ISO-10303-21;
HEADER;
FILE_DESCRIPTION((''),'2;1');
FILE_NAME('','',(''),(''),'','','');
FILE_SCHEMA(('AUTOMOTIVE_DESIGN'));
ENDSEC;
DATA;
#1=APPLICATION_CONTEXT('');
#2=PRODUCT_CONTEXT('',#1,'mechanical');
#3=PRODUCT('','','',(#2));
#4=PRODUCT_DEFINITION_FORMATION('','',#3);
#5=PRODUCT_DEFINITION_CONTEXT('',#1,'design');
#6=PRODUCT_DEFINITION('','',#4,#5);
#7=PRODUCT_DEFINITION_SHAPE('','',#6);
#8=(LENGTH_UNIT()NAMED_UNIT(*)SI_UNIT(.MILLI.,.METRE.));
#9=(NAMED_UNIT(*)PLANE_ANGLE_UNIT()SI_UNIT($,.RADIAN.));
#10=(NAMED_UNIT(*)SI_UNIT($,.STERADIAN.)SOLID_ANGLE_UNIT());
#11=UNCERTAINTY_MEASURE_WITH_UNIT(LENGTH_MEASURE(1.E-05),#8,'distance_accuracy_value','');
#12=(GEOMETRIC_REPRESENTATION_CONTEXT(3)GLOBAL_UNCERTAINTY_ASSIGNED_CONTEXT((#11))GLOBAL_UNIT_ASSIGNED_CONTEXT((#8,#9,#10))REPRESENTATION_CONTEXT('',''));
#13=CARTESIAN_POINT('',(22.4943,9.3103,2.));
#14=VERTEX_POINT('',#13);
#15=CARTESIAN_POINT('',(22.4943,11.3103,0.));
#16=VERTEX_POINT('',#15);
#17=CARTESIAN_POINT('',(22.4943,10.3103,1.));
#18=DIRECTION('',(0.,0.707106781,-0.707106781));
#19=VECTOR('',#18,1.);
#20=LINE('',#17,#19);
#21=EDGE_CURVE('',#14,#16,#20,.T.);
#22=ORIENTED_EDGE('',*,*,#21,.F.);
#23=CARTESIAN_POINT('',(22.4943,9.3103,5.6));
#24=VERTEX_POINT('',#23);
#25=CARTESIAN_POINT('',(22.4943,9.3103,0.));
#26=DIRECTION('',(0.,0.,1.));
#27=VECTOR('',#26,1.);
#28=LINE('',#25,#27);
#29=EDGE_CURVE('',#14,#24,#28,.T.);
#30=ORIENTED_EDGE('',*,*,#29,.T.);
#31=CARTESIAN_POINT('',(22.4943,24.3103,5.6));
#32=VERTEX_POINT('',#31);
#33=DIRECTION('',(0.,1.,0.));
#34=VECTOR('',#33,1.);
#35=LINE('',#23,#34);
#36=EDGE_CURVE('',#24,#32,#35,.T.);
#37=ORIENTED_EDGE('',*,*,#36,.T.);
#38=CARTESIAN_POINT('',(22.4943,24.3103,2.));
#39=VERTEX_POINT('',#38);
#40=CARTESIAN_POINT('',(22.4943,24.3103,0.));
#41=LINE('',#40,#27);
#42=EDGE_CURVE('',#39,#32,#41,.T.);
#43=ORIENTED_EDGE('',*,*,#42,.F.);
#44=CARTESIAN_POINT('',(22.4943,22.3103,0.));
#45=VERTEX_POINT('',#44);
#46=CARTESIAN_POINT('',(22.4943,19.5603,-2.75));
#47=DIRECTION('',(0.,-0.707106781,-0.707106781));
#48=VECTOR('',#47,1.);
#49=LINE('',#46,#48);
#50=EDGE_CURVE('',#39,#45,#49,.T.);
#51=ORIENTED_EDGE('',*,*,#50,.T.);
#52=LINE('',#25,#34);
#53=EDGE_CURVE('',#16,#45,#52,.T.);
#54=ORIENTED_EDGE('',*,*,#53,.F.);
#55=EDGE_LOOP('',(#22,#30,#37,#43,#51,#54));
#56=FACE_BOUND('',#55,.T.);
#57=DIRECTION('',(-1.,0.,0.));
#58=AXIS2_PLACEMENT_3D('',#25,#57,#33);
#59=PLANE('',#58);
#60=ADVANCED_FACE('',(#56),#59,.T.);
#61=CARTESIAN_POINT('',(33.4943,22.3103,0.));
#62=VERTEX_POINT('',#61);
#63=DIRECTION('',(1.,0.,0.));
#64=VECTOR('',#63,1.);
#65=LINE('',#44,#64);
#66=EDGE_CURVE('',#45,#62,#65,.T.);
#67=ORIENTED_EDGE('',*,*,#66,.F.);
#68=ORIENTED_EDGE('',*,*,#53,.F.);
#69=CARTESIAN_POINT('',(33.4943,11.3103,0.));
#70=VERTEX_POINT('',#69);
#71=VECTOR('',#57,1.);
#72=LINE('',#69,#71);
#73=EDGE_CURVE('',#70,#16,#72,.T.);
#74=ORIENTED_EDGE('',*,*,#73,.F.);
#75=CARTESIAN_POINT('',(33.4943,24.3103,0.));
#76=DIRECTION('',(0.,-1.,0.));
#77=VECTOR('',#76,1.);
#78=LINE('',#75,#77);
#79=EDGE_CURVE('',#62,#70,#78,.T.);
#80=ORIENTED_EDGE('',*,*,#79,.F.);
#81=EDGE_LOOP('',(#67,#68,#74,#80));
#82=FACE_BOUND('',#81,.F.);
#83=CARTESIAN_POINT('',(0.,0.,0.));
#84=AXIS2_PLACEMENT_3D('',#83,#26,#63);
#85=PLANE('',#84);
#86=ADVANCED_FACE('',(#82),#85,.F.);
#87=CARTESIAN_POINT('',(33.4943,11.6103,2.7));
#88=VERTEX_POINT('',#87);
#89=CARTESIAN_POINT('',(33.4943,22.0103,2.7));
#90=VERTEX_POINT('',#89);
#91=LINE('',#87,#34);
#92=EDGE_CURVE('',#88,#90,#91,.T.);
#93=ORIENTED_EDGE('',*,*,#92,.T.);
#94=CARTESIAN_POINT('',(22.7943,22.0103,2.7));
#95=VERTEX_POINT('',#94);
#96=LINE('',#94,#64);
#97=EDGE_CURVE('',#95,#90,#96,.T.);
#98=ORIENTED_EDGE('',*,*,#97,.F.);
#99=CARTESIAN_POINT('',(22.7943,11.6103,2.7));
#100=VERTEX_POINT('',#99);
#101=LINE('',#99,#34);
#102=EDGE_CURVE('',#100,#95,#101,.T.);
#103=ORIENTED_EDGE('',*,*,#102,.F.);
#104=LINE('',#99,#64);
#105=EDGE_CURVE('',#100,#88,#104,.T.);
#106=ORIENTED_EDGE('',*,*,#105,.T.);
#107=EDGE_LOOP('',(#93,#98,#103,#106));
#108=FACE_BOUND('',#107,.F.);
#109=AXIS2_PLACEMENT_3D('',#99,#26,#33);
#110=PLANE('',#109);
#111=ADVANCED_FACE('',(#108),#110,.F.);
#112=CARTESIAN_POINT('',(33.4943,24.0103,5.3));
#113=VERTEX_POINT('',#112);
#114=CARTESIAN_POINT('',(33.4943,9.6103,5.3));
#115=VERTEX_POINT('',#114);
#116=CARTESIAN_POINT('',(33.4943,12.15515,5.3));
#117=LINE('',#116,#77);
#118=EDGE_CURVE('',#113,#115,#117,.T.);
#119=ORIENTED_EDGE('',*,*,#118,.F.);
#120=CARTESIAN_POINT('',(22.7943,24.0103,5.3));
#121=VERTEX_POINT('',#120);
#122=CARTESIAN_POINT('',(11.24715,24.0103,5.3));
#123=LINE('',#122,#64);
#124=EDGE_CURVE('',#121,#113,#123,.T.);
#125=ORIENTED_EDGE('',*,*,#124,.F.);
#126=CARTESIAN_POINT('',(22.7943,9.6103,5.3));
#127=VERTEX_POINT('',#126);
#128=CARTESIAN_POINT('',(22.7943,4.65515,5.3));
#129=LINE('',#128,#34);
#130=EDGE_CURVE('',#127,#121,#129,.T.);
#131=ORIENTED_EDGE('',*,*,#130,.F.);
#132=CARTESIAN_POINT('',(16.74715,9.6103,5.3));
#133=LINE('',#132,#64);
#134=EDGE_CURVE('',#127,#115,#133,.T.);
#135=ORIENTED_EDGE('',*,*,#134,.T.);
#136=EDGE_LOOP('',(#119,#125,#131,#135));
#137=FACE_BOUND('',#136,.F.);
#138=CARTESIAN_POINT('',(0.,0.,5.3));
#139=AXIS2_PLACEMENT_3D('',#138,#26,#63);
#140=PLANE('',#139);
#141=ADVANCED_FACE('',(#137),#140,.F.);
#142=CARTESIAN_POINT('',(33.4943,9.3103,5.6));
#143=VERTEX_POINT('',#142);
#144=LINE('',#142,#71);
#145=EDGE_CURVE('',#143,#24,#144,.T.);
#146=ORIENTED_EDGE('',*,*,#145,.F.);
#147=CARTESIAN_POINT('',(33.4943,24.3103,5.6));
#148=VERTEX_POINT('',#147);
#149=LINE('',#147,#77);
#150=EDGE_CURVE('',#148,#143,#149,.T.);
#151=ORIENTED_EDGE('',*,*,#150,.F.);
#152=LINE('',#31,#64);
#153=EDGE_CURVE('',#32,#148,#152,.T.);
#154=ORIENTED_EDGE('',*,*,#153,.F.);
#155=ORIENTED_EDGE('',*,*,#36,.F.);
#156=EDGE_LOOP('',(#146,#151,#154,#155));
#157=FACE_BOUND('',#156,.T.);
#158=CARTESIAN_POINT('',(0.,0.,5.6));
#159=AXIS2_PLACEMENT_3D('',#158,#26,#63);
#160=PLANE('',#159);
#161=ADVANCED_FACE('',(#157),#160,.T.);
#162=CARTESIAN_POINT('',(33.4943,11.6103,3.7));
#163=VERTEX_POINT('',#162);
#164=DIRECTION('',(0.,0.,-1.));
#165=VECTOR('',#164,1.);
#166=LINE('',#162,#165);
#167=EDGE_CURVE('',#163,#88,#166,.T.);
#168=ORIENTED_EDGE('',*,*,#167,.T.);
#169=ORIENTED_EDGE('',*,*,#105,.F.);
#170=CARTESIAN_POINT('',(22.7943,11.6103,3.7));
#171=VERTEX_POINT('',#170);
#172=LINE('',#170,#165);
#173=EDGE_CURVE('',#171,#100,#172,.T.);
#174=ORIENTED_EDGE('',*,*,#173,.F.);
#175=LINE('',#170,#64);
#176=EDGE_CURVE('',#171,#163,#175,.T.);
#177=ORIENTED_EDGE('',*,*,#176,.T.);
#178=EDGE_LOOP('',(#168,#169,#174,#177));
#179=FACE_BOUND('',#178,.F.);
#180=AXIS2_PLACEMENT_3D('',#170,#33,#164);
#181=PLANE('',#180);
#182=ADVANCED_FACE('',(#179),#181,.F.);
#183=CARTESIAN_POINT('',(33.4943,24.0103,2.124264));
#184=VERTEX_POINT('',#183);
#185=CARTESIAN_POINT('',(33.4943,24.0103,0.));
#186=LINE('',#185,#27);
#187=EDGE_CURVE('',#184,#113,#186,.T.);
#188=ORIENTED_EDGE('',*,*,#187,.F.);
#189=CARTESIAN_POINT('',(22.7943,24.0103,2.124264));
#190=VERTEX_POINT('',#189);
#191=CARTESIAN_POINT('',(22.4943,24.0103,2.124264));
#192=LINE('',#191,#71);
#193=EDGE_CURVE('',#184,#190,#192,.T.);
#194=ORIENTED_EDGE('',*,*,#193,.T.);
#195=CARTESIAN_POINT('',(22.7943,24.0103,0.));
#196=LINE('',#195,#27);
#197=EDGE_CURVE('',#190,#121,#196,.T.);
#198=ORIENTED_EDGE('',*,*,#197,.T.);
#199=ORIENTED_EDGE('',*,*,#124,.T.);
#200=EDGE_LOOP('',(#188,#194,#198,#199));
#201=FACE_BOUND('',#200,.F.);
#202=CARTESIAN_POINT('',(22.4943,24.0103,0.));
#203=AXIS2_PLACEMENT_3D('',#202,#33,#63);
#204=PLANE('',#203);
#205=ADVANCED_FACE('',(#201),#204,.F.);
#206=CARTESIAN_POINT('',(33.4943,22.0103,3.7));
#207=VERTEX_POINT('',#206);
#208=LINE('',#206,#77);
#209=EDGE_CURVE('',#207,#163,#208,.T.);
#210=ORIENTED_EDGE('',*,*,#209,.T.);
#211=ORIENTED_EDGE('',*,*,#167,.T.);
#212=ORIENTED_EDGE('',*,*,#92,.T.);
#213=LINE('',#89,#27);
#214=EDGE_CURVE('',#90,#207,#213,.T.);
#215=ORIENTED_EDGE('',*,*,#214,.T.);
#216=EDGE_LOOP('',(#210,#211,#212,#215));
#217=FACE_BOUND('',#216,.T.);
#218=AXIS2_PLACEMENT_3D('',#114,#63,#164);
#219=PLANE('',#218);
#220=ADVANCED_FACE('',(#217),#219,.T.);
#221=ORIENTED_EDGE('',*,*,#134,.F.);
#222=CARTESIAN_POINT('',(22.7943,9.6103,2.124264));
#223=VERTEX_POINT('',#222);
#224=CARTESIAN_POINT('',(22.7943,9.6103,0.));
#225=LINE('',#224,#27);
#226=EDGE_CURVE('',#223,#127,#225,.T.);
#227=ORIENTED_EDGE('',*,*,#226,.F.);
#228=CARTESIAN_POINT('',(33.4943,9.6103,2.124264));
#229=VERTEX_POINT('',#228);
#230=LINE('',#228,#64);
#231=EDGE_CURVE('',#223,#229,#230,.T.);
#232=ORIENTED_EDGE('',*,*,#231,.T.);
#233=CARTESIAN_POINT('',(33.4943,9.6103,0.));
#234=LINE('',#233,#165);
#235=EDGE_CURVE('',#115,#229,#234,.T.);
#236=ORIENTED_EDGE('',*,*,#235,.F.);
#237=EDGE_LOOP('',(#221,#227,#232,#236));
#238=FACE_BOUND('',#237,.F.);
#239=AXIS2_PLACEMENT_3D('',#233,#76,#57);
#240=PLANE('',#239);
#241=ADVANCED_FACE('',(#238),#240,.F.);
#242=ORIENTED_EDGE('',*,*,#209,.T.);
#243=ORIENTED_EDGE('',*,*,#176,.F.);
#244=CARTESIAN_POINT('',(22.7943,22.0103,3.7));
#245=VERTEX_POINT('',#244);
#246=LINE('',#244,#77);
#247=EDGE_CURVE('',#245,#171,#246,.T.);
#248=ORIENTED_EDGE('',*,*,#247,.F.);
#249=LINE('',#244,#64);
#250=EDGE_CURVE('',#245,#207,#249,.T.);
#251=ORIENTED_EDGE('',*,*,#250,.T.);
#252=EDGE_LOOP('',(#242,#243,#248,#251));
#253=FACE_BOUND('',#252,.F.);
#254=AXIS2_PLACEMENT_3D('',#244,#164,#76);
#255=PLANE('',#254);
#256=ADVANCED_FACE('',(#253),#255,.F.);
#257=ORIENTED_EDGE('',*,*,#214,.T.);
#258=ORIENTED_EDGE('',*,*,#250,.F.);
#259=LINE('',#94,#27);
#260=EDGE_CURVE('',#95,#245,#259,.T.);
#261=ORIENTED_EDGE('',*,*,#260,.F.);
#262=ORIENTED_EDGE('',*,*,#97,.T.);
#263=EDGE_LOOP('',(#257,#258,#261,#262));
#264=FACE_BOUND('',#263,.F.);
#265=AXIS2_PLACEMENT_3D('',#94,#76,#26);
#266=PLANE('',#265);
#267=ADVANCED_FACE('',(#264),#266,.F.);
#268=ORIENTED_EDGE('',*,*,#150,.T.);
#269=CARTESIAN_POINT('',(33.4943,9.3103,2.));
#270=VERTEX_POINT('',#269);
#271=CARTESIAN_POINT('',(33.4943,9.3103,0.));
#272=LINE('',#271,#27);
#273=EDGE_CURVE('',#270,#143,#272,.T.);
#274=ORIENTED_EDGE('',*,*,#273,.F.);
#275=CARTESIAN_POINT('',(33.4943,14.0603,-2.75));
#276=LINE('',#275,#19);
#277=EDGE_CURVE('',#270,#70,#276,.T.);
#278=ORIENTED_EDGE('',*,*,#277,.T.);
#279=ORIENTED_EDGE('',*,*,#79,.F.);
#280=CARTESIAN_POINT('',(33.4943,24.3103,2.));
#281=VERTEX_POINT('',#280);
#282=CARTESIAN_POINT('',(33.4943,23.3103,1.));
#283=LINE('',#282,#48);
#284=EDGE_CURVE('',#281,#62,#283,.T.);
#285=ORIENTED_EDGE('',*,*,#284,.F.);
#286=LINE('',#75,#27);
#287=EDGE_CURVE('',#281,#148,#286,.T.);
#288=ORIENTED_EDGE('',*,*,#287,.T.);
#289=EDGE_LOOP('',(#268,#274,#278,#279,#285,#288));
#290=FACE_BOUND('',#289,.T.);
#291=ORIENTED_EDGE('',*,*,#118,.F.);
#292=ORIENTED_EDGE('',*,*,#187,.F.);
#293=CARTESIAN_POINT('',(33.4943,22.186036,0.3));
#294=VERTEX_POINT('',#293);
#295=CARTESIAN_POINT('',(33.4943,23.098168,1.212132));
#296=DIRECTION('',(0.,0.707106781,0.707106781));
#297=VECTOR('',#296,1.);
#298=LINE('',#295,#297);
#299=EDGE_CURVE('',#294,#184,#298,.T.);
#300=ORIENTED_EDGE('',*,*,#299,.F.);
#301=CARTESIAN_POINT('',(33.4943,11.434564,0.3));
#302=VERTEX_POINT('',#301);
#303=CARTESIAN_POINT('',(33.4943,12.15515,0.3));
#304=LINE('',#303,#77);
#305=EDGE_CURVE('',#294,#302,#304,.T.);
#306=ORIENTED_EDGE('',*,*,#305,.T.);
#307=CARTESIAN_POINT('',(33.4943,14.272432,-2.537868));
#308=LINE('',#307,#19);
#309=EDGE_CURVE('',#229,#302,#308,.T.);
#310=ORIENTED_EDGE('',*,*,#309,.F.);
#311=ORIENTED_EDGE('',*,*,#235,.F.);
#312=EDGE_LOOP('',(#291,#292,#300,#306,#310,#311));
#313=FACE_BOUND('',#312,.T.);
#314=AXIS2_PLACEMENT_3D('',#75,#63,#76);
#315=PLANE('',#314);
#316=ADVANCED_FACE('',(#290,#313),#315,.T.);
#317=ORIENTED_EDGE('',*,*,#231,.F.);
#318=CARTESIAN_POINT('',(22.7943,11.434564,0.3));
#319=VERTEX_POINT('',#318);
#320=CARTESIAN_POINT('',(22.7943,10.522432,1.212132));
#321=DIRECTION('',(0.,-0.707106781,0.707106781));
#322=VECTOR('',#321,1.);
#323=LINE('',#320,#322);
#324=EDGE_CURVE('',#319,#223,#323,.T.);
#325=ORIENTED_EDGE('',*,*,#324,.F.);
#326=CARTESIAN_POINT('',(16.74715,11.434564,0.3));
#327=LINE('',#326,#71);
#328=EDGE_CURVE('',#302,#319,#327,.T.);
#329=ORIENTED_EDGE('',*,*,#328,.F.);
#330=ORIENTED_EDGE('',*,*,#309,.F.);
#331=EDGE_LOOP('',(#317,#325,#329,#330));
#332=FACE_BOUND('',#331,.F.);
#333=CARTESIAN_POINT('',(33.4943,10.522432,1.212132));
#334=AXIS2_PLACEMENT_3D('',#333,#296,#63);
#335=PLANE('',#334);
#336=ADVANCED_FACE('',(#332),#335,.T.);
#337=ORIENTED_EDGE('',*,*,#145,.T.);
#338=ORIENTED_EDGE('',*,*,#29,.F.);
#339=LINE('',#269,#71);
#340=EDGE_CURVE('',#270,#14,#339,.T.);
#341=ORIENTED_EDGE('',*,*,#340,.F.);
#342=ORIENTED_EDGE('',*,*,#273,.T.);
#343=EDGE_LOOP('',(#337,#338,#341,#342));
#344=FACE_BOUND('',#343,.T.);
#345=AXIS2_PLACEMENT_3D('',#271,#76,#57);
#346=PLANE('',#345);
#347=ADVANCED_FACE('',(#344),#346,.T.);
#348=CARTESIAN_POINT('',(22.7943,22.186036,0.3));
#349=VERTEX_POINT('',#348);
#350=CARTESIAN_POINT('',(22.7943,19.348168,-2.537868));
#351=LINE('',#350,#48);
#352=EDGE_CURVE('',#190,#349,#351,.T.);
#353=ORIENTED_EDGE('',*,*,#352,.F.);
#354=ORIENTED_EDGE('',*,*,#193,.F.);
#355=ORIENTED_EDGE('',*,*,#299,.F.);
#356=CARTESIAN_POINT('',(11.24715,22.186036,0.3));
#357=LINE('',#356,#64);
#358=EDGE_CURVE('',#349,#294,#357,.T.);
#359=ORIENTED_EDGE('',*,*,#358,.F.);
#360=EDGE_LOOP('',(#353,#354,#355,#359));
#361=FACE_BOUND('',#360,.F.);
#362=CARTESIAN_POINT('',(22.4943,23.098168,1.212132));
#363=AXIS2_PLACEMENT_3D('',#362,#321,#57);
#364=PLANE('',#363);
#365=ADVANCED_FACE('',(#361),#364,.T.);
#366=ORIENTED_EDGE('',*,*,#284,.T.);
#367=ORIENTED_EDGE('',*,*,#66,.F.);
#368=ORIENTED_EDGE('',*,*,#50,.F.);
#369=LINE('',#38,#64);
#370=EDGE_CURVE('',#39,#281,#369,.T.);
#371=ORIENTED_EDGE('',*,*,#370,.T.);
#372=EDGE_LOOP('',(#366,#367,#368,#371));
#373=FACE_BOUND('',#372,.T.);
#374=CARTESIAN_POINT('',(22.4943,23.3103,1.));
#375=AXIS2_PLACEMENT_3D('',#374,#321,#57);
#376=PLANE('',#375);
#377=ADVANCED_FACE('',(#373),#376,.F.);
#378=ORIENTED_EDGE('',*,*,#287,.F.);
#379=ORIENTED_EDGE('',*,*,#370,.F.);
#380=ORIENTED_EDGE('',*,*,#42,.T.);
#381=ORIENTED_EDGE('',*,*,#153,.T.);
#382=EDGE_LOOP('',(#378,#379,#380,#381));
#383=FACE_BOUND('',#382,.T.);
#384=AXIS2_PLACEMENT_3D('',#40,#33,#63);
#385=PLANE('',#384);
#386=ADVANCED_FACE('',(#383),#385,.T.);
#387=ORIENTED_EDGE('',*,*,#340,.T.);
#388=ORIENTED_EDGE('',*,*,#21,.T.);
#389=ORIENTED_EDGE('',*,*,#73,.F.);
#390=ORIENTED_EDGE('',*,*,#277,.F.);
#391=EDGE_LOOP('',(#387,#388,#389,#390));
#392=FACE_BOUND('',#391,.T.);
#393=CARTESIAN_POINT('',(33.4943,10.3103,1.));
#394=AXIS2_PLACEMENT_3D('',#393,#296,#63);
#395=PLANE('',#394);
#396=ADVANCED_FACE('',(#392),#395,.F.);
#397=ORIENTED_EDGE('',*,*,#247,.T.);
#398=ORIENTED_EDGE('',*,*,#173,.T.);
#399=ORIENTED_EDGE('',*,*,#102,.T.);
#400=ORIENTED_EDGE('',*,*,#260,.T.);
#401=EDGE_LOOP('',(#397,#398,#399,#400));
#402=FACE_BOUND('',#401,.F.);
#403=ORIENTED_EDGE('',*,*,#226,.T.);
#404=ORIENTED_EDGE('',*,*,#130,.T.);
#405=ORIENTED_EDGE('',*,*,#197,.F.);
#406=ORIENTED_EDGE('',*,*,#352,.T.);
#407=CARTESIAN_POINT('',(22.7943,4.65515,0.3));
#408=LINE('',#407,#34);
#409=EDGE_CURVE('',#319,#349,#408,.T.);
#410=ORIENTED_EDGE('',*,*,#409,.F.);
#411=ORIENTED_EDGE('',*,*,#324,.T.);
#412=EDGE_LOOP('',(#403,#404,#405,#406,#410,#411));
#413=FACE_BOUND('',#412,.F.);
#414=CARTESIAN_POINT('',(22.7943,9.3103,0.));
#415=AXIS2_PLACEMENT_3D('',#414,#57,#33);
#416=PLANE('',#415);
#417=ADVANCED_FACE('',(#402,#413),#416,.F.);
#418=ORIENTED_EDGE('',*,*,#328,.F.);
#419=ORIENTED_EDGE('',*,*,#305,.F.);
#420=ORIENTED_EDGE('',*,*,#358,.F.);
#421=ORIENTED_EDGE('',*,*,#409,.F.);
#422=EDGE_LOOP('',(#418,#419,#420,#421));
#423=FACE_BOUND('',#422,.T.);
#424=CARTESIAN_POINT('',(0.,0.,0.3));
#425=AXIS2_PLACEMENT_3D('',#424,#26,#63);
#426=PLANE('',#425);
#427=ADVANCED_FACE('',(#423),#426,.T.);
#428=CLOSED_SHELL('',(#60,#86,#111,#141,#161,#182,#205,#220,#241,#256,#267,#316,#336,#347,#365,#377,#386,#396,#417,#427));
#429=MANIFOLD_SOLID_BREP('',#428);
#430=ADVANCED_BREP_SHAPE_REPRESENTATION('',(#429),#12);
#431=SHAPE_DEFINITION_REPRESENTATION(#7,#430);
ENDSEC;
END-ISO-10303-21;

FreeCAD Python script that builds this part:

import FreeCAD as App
import Part
import Sketcher

V = App.Vector
Q = App.Units.Quantity


def edges_at(feature, points):
    """Names of the edges that pass closest to the given points."""
    edges = feature.Shape.Edges
    near = lambda p: min(range(len(edges)), key=lambda i: edges[i].distToShape(Part.Vertex(*p))[0])
    return sorted({f"Edge{near(p) + 1}" for p in points})


def faces_at(feature, points):
    """Names of the faces that lie closest to the given points."""
    faces = feature.Shape.Faces
    near = lambda p: min(range(len(faces)), key=lambda i: faces[i].distToShape(Part.Vertex(*p))[0])
    return sorted({f"Face{near(p) + 1}" for p in points})


def add_polygon(sketch, points):
    """Adds a closed chain of lines whose ends are joined by coincident constraints."""
    first, n = sketch.GeometryCount, len(points)
    for a, b in zip(points, points[1:] + points[:1]):
        sketch.addGeometry(Part.LineSegment(App.Vector(*a, 0), App.Vector(*b, 0)), False)
    for i in range(n):
        sketch.addConstraint(Sketcher.Constraint("Coincident", first + i, 2, first + (i + 1) % n, 1))

doc = App.newDocument("Part")
body = doc.addObject("PartDesign::Body", "Body")

# Sketch on XY plane
sketch1 = doc.addObject("Sketcher::SketchObject", "Sketch")
body.addObject(sketch1)
sketch1.AttachmentSupport = (doc.XY_Plane, [""])
sketch1.MapMode = "FlatFace"
add_polygon(sketch1, [(33.4943, 24.3103), (22.4943, 24.3103), (22.4943, 9.3103), (33.4943, 9.3103)])  # lines 0-3
sketch1.addConstraint(Sketcher.Constraint("Horizontal", 0))
sketch1.addConstraint(Sketcher.Constraint("Vertical", 1))
sketch1.addConstraint(Sketcher.Constraint("Horizontal", 2))
sketch1.addConstraint(Sketcher.Constraint("Vertical", 3))
sketch1.addConstraint(Sketcher.Constraint("DistanceX", 0, 2, 0, 1, Q("11 mm")))
sketch1.addConstraint(Sketcher.Constraint("DistanceY", 1, 2, 1, 1, Q("15 mm")))
sketch1.addConstraint(Sketcher.Constraint("DistanceX", -1, 1, 0, 2, Q("22.4943 mm")))
sketch1.addConstraint(Sketcher.Constraint("DistanceY", -1, 1, 0, 2, Q("24.3103 mm")))
pad1 = doc.addObject("PartDesign::Pad", "Pad")
body.addObject(pad1)
pad1.Profile = sketch1
pad1.Length = 5.6
doc.recompute()

chamfer = doc.addObject("PartDesign::Chamfer", "Chamfer")
body.addObject(chamfer)
chamfer.Base = (pad1, edges_at(pad1, [(27.994, 9.31, 0), (27.994, 24.31, 0)]))
chamfer.Size = 2
doc.recompute()

thickness = doc.addObject("PartDesign::Thickness", "Thickness")
body.addObject(thickness)
thickness.Base = (chamfer, faces_at(chamfer, [(33.494, 18.644, 3.733)]))
thickness.Value = 0.3
thickness.Reversed = True
thickness.Join = "Intersection"

# Sketch on YZ plane
sketch2 = doc.addObject("Sketcher::SketchObject", "Sketch001")
body.addObject(sketch2)
sketch2.AttachmentSupport = (doc.YZ_Plane, [""])
sketch2.MapMode = "FlatFace"
sketch2.AttachmentOffset = App.Placement(V(0, 0, 22.7943), App.Rotation())
add_polygon(sketch2, [(11.6103, 2.7), (22.0103, 2.7), (22.0103, 3.7), (11.6103, 3.7)])  # lines 0-3
sketch2.addConstraint(Sketcher.Constraint("Horizontal", 0))
sketch2.addConstraint(Sketcher.Constraint("Vertical", 1))
sketch2.addConstraint(Sketcher.Constraint("Horizontal", 2))
sketch2.addConstraint(Sketcher.Constraint("Vertical", 3))
sketch2.addConstraint(Sketcher.Constraint("DistanceY", 1, 1, 1, 2, Q("1 mm")))
sketch2.addConstraint(Sketcher.Constraint("DistanceX", 0, 1, 0, 2, Q("10.4 mm")))
sketch2.addConstraint(Sketcher.Constraint("DistanceY", -1, 1, 0, 2, Q("2.7 mm")))
sketch2.addConstraint(Sketcher.Constraint("DistanceX", -1, 1, 0, 2, Q("22.0103 mm")))
pad2 = doc.addObject("PartDesign::Pad", "Pad001")
body.addObject(pad2)
pad2.Profile = sketch2
pad2.Length = 10.7

doc.recompute()
